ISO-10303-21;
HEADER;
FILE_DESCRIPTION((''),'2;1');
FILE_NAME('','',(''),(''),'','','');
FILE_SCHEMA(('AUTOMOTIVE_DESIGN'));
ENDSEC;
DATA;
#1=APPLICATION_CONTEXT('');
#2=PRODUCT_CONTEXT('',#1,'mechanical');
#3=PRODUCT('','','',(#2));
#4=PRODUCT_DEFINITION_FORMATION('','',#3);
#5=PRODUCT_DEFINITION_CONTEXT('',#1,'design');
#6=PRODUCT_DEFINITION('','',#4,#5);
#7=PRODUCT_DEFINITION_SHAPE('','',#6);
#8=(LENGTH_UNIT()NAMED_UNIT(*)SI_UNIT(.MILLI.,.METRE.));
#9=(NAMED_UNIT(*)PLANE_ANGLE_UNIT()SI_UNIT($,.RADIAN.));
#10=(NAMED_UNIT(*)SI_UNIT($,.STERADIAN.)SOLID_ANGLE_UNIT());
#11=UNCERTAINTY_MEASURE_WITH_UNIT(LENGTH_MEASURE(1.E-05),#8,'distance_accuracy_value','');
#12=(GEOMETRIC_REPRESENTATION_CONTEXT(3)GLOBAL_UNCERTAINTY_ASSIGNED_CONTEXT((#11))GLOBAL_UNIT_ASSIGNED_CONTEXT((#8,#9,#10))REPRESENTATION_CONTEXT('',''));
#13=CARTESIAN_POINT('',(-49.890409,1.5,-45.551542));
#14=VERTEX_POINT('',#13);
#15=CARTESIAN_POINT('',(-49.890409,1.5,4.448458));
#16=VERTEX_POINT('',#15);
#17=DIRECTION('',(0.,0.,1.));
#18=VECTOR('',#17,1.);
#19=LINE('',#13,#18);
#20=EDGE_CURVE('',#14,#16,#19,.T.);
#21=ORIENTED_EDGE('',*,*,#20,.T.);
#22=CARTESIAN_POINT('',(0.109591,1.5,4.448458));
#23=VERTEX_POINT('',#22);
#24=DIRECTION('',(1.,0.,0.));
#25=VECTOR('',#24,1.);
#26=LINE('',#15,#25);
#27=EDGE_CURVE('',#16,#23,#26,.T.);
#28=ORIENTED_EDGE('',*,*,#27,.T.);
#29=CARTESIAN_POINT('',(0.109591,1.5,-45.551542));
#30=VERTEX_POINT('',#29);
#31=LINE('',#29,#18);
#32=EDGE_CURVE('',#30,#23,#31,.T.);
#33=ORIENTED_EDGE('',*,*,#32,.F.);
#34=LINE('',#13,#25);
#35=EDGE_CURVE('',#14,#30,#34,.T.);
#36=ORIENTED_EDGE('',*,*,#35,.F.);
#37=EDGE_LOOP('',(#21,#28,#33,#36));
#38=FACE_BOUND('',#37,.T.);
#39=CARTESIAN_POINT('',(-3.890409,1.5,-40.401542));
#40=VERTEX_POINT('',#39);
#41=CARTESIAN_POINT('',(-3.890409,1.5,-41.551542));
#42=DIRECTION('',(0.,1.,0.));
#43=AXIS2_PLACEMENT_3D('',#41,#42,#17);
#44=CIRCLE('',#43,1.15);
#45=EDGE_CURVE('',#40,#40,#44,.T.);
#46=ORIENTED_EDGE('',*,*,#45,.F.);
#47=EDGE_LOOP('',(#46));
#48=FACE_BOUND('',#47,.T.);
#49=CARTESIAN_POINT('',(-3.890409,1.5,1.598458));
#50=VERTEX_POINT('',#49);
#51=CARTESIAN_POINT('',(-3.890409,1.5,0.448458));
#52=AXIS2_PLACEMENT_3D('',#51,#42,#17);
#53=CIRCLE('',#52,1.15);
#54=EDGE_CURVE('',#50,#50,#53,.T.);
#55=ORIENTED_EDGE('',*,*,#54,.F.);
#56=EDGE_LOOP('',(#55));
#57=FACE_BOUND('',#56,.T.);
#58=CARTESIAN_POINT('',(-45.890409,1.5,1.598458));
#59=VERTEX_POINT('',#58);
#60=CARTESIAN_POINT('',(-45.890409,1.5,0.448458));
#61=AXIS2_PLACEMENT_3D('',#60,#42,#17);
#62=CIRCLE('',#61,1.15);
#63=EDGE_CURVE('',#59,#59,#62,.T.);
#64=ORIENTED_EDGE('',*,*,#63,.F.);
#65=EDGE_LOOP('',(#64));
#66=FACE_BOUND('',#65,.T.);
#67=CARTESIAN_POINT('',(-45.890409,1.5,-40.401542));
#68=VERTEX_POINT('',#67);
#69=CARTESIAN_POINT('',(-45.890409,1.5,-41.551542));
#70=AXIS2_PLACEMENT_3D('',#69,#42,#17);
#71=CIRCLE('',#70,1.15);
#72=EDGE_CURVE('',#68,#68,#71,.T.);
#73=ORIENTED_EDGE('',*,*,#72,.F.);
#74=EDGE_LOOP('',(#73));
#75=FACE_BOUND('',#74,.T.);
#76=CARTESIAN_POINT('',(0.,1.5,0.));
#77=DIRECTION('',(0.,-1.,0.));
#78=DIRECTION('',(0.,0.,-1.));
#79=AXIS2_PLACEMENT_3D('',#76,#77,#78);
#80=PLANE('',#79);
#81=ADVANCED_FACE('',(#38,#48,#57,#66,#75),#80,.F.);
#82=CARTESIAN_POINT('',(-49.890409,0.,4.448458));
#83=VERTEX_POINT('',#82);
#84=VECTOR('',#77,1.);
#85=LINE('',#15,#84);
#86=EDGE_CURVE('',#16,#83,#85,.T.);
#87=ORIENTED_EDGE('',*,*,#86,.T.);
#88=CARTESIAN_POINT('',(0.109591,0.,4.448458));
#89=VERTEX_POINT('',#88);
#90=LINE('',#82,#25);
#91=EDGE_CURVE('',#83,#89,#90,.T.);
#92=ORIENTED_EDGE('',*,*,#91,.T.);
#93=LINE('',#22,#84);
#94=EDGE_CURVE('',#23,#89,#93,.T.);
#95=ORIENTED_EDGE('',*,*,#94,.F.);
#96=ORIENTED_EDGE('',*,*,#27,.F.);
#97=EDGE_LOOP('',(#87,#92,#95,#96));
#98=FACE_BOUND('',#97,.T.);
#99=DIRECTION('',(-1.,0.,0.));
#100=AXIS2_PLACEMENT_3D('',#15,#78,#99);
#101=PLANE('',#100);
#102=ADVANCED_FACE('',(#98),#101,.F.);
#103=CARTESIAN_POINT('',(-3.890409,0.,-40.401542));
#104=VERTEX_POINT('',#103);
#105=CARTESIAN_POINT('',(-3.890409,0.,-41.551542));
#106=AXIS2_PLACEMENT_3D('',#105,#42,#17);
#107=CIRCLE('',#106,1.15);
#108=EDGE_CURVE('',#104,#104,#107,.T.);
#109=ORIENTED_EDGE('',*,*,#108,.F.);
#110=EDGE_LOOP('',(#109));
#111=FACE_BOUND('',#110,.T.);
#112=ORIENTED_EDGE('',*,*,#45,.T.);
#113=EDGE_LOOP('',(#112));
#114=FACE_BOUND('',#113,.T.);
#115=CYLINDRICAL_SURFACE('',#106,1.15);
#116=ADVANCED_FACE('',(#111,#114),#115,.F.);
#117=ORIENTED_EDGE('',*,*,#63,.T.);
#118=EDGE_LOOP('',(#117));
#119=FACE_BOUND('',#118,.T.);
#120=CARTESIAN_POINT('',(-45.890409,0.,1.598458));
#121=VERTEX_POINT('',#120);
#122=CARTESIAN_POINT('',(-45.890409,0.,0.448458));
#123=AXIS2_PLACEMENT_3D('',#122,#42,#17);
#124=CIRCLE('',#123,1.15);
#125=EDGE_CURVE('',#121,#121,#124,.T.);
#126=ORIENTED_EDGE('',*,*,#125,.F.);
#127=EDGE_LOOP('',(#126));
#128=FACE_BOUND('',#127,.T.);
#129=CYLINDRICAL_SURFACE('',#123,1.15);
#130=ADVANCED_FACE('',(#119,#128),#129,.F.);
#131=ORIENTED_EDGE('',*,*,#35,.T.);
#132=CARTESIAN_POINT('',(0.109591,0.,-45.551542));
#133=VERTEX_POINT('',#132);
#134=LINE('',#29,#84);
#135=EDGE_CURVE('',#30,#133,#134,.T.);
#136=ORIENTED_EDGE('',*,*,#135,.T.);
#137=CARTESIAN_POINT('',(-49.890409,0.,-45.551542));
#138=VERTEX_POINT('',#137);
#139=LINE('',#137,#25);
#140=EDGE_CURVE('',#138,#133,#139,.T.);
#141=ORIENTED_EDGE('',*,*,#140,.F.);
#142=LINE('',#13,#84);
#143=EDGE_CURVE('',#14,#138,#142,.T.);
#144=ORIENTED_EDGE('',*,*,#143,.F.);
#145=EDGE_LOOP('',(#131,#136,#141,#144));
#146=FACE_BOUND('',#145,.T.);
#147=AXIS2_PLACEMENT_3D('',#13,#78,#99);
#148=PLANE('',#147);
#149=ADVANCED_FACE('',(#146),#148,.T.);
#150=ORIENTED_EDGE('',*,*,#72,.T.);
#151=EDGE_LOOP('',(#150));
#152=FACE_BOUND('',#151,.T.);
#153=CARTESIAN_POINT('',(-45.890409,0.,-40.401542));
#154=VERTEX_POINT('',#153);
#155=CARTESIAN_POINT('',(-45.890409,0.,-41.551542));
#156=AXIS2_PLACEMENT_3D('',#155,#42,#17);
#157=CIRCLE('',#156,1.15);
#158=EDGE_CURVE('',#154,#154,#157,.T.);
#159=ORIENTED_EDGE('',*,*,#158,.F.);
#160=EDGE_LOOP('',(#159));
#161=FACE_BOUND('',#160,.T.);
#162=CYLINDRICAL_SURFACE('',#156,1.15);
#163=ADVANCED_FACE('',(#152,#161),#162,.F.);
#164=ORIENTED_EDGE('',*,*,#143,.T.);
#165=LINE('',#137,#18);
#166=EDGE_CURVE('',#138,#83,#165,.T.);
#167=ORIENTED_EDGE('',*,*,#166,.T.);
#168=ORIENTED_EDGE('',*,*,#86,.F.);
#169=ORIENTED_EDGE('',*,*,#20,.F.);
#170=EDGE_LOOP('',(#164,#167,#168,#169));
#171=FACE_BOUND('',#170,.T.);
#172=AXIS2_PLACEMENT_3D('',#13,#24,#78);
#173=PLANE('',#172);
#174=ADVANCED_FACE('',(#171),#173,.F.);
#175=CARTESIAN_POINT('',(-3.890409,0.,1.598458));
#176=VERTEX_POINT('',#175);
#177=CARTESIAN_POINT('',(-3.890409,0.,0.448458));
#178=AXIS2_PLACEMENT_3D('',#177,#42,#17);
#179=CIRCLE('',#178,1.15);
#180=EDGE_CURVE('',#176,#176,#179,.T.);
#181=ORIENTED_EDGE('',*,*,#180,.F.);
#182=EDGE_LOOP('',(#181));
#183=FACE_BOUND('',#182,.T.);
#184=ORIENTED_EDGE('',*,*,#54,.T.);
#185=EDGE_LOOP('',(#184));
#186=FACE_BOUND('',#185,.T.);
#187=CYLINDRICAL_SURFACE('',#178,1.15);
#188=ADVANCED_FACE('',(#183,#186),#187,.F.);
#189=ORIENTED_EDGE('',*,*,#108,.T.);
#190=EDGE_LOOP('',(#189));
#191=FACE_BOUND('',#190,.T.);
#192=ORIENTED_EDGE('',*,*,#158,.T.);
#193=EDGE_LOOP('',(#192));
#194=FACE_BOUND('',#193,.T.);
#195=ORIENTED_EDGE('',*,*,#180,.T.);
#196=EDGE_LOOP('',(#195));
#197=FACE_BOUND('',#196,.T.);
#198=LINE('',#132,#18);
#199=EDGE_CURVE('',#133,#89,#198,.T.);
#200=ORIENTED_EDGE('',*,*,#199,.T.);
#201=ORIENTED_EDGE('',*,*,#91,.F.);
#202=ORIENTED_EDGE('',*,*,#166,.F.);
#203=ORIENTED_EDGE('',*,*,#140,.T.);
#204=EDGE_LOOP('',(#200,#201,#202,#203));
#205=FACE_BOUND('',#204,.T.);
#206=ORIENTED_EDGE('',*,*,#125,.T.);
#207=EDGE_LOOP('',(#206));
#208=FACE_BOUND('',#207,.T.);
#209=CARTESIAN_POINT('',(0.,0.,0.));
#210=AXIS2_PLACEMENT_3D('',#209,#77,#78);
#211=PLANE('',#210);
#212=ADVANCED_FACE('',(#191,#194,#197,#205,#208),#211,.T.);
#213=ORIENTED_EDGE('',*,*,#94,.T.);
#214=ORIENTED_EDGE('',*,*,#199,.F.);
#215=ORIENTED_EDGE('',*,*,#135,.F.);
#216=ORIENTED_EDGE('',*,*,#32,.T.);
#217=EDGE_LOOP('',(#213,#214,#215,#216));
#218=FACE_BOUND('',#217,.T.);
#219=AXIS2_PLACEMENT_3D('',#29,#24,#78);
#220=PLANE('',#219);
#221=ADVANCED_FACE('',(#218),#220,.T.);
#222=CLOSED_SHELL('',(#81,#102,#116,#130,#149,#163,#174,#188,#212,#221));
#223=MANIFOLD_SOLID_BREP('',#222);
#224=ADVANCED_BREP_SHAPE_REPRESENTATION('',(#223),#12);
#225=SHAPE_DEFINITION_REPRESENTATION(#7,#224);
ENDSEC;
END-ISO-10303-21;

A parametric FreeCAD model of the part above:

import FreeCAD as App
import Part
import Sketcher


def add_polygon(sketch, points):
    """Adds a closed chain of lines whose ends are joined by coincident constraints."""
    first, n = sketch.GeometryCount, len(points)
    for a, b in zip(points, points[1:] + points[:1]):
        sketch.addGeometry(Part.LineSegment(App.Vector(*a, 0), App.Vector(*b, 0)), False)
    for i in range(n):
        sketch.addConstraint(Sketcher.Constraint("Coincident", first + i, 2, first + (i + 1) % n, 1))

doc = App.newDocument("Part")
body = doc.addObject("PartDesign::Body", "Body")

# Sketch on XZ plane
sketch1 = body.newObject("Sketcher::SketchObject", "Sketch")
sketch1.AttachmentSupport = (doc.getObject("XZ_Plane"), [""])
sketch1.MapMode = "FlatFace"
add_polygon(sketch1, [(-50, -46), (-50, 4), (0, 4), (0, -46)])  # lines 0-3
sketch1.addConstraint(Sketcher.Constraint("Vertical", 0))
sketch1.addConstraint(Sketcher.Constraint("Horizontal", 1))
sketch1.addConstraint(Sketcher.Constraint("Vertical", 2))
sketch1.addConstraint(Sketcher.Constraint("Horizontal", 3))
sketch1.addConstraint(Sketcher.Constraint("Equal", 3, 0))
sketch1.addConstraint(Sketcher.Constraint("DistanceX", 1, 1, 1, 2, 50.0))
sketch1.addConstraint(Sketcher.Constraint("DistanceX", 0, 2, -1, 1, 49.890409))
sketch1.addConstraint(Sketcher.Constraint("DistanceY", -1, 1, 0, 2, 4.448458))
pad1 = body.newObject("PartDesign::Pad", "Pad")
pad1.Profile = sketch1
pad1.Length = 1.5
pad1.Reversed = True

# Sketch on XZ plane
sketch2 = body.newObject("Sketcher::SketchObject", "Sketch001")
sketch2.AttachmentSupport = (doc.getObject("XZ_Plane"), [""])
sketch2.MapMode = "FlatFace"
sketch2.AttachmentOffset = App.Placement(App.Vector(0, 0, -1.5), App.Rotation())
sketch2.addGeometry(Part.Circle(App.Vector(-3.9, 0.4, 0), App.Vector(0, 0, 1), 1.1), False)
sketch2.addGeometry(Part.Circle(App.Vector(-45.9, 0.4, 0), App.Vector(0, 0, 1), 1.1), False)
sketch2.addGeometry(Part.Circle(App.Vector(-45.9, -41.6, 0), App.Vector(0, 0, 1), 1.1), False)
sketch2.addGeometry(Part.Circle(App.Vector(-3.9, -41.6, 0), App.Vector(0, 0, 1), 1.1), False)
sketch2.addConstraint(Sketcher.Constraint("Equal", 0, 1))
sketch2.addConstraint(Sketcher.Constraint("Equal", 1, 2))
sketch2.addConstraint(Sketcher.Constraint("Equal", 2, 3))
sketch2.addConstraint(Sketcher.Constraint("Horizontal", 0, 3, 1, 3))
sketch2.addConstraint(Sketcher.Constraint("Horizontal", 2, 3, 3, 3))
sketch2.addConstraint(Sketcher.Constraint("Vertical", 1, 3, 2, 3))
sketch2.addConstraint(Sketcher.Constraint("Vertical", 0, 3, 3, 3))
sketch2.addConstraint(Sketcher.Constraint("Diameter", 0, 2.3))
sketch2.addConstraint(Sketcher.Constraint("DistanceX", 1, 3, 0, 3, 42.0))
sketch2.addConstraint(Sketcher.Constraint("DistanceY", 2, 3, 1, 3, 42.0))
sketch2.addConstraint(Sketcher.Constraint("DistanceX", 0, 3, -1, 1, 3.890409))
sketch2.addConstraint(Sketcher.Constraint("DistanceY", -1, 1, 0, 3, 0.448458))
pocket1 = body.newObject("PartDesign::Pocket", "Pocket")
pocket1.Profile = sketch2
pocket1.Length = 1.5
pocket1.Reversed = True

doc.recompute()
